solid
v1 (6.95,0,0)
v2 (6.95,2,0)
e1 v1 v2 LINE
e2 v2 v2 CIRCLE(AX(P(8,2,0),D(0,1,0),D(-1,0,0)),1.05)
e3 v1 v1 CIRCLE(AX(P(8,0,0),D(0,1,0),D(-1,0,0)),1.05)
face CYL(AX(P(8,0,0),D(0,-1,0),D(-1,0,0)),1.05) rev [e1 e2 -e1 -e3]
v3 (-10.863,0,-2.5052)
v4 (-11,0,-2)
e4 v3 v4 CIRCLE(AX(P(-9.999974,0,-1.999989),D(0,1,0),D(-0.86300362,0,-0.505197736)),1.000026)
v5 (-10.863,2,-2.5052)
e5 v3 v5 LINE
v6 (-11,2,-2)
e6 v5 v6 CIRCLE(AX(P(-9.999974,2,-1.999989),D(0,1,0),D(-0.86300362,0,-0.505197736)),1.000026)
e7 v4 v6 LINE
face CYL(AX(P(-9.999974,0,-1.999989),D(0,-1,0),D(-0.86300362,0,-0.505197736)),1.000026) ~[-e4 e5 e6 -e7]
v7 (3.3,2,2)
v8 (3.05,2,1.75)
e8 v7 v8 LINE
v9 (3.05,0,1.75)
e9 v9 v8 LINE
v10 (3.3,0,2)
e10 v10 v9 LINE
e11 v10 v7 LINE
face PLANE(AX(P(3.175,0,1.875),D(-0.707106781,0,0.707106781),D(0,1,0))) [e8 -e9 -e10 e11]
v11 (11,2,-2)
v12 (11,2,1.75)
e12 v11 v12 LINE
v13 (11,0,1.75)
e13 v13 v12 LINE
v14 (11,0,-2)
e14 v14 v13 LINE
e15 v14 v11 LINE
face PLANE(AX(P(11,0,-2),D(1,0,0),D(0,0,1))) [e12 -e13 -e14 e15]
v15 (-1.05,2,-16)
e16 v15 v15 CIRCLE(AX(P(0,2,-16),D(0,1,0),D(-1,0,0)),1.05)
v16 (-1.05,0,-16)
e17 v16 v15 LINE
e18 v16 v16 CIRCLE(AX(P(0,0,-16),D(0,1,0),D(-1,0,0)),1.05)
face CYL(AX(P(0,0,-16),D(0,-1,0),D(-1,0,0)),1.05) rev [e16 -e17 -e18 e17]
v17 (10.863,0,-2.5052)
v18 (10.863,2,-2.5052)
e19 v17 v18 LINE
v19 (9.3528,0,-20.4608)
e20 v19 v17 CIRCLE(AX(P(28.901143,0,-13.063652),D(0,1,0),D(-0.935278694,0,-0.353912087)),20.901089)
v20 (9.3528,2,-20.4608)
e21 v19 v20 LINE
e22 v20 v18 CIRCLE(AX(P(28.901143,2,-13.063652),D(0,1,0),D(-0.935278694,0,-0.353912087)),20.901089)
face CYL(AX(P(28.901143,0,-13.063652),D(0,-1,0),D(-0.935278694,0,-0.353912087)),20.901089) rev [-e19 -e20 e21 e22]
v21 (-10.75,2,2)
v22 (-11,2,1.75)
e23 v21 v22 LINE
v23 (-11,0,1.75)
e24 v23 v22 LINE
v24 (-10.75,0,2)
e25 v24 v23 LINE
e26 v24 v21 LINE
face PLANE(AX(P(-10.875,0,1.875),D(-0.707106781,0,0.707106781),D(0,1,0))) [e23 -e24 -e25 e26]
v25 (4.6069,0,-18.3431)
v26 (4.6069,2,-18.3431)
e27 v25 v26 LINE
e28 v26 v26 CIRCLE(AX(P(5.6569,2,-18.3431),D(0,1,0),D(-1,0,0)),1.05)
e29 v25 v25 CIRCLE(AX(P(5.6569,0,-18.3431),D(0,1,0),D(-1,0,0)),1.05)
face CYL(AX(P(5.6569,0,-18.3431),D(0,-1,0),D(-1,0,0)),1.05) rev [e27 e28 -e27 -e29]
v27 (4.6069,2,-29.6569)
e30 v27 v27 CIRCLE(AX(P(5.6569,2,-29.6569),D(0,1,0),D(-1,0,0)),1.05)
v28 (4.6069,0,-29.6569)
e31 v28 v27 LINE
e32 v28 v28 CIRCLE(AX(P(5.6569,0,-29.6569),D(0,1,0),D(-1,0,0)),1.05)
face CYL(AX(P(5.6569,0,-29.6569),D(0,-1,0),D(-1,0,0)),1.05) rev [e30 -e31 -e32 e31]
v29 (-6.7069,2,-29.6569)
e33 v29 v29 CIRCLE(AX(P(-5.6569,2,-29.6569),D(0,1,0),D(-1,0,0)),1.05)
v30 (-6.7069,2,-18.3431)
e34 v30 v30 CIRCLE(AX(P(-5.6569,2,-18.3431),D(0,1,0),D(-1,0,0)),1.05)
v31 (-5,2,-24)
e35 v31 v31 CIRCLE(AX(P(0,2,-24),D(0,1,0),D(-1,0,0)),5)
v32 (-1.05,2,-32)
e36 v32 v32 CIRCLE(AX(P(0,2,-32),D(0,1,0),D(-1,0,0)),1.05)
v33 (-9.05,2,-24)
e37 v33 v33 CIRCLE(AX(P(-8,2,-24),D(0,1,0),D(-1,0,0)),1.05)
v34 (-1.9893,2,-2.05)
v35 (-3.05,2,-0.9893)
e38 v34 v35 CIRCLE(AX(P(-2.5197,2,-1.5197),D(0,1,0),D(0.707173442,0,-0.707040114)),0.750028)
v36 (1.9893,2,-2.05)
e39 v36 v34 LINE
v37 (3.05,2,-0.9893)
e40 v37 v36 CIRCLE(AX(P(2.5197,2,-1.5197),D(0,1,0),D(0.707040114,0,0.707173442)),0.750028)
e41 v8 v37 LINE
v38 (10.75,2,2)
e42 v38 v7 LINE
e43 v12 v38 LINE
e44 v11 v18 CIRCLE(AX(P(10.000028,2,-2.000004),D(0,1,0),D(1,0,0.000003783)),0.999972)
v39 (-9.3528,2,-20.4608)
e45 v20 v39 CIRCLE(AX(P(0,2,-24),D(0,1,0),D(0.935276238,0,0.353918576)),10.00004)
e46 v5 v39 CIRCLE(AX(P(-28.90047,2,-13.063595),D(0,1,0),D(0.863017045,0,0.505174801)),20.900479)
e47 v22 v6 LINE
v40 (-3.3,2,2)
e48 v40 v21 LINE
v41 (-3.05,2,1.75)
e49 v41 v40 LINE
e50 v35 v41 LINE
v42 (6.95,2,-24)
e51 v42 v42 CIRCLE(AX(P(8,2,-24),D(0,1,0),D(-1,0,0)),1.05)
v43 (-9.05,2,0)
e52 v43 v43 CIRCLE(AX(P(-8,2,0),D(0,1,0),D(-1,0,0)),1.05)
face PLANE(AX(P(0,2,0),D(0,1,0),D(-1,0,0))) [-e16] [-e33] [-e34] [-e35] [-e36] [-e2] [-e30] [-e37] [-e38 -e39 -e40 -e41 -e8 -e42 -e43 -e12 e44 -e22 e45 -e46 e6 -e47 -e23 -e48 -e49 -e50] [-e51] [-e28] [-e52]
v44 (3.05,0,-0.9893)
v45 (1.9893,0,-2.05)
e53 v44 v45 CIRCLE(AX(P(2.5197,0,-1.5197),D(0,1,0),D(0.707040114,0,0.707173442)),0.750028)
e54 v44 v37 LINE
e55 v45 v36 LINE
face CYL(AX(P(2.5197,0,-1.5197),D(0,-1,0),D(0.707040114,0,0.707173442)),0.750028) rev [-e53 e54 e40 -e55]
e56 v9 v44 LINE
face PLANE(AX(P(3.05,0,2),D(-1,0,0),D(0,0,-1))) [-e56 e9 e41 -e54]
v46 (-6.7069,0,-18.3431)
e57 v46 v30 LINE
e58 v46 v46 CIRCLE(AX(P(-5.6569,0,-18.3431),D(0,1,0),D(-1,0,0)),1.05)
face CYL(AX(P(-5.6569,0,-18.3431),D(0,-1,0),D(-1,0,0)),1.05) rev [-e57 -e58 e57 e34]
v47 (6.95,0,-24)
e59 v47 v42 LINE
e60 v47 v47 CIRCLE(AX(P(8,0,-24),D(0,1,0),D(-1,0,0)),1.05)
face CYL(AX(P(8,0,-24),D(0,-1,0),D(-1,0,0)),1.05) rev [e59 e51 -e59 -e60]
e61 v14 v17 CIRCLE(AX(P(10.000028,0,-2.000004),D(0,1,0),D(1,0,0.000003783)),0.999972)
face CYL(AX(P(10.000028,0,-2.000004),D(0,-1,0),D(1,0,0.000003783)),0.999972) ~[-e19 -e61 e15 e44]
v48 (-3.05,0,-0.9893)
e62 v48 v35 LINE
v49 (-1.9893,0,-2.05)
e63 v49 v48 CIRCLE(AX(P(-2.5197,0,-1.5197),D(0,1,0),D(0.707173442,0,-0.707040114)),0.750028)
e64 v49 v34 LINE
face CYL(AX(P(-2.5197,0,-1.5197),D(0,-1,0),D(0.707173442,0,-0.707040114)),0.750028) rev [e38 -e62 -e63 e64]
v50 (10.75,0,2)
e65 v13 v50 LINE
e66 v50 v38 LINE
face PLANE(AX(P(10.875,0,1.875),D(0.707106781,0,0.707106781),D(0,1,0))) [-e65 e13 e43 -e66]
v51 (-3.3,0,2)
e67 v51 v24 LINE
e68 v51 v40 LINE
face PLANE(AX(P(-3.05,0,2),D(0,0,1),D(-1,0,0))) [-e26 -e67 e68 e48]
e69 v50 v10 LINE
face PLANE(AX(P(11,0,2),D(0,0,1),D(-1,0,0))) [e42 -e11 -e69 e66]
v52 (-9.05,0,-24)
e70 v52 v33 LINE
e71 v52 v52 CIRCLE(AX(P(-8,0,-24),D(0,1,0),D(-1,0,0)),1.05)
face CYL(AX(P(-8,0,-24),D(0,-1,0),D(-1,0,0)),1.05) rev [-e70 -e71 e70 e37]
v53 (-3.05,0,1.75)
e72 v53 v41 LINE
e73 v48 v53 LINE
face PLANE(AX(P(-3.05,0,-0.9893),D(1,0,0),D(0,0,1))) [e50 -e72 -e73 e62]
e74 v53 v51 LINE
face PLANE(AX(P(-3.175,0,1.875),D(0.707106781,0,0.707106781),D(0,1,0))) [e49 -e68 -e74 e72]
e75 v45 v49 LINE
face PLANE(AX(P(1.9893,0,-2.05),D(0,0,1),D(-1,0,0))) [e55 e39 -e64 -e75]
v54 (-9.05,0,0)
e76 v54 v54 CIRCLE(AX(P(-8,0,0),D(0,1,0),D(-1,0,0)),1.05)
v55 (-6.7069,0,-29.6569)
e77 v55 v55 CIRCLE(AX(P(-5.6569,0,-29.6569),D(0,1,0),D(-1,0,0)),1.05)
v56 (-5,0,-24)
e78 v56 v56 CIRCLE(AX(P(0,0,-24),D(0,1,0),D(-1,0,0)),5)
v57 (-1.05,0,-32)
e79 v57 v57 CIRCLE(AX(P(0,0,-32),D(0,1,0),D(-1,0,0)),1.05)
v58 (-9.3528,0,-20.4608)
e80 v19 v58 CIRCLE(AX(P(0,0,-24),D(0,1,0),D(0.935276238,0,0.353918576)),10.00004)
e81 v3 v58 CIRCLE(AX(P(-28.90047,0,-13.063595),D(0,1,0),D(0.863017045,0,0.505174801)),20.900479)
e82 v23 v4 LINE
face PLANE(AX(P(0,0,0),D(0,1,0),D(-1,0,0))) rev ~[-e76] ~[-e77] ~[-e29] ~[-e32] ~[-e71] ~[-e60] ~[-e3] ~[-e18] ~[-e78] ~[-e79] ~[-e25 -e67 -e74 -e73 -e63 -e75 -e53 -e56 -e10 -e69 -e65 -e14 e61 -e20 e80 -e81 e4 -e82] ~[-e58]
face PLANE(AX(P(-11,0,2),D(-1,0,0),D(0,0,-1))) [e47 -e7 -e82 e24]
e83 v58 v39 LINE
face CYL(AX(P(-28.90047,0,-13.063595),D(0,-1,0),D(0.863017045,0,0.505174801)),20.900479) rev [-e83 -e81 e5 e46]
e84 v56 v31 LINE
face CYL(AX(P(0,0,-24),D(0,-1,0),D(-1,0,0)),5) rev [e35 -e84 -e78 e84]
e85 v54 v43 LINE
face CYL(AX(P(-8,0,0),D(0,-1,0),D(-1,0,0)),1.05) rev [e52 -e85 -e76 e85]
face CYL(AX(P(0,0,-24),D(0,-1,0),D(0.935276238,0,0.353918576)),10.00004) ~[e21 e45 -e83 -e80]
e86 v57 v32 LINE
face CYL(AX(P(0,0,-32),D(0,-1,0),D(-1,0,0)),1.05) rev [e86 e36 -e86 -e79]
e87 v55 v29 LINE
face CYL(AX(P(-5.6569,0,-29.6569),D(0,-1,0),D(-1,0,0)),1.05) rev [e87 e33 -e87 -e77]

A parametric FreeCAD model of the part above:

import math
import FreeCAD as App
import Part
import Sketcher

V = App.Vector
Q = App.Units.Quantity


def edges_at(feature, points):
    """Names of the edges that pass closest to the given points."""
    edges = feature.Shape.Edges
    near = lambda p: min(range(len(edges)), key=lambda i: edges[i].distToShape(Part.Vertex(*p))[0])
    return sorted({f"Edge{near(p) + 1}" for p in points})

doc = App.newDocument("Part")
params = doc.addObject("Spreadsheet::Sheet", "Params")
for row, (alias, value) in enumerate([
    ("sketch1_diameter", "10 mm"),
    ("sketch1_radius", "10 mm"),
    ("sketch1_radius2", "1 mm"),
    ("sketch1_diameter2", "2.1 mm"),
    ("sketch1_height", "4 mm"),
    ("pad1_length", "2 mm"),
    ("chamfer_size", "0.25 mm"),
], start=1):
    params.set(f"A{row}", alias)
    params.set(f"B{row}", "=" + value)
    params.setAlias(f"B{row}", alias)

body = doc.addObject("PartDesign::Body", "Body")

sketch1 = body.newObject("Sketcher::SketchObject", "Sketch")
sketch1.AttachmentSupport = (doc.getObject("XZ_Plane"), [""])
sketch1.MapMode = "FlatFace"
sketch1.addGeometry([
    Part.ArcOfCircle(Part.Circle(V(28.9, -13.1, 0), V(0, 0, 1), 20.9), math.radians(150), math.radians(201)),
    Part.ArcOfCircle(Part.Circle(V(0, -24, 0), V(0, 0, 1), 10), math.radians(159), math.radians(381)),
    Part.ArcOfCircle(Part.Circle(V(-28.9, -13.1, 0), V(0, 0, 1), 20.9), math.radians(-21), math.radians(30)),
    Part.ArcOfCircle(Part.Circle(V(-10, -2, 0), V(0, 0, 1), 1), math.radians(180), math.radians(210)),
    Part.LineSegment(V(-11, -2, 0), V(-11, 2, 0)),
    Part.LineSegment(V(-11, 2, 0), V(-3, 2, 0)),
    Part.LineSegment(V(-3, 2, 0), V(-3, -1, 0)),
    Part.ArcOfCircle(Part.Circle(V(-2.5, -1.5, 0), V(0, 0, 1), 0.8), math.radians(135), math.radians(315)),
    Part.LineSegment(V(-2, -2, 0), V(2, -2, 0)),
    Part.ArcOfCircle(Part.Circle(V(2.5, -1.5, 0), V(0, 0, 1), 0.8), math.radians(-135), math.radians(45)),
    Part.LineSegment(V(3, -1, 0), V(3, 2, 0)),
    Part.LineSegment(V(3, 2, 0), V(11, 2, 0)),
    Part.LineSegment(V(11, 2, 0), V(11, -2, 0)),
    Part.ArcOfCircle(Part.Circle(V(10, -2, 0), V(0, 0, 1), 1), math.radians(-30), math.radians(0)),
    Part.Circle(V(5.7, -29.7, 0), V(0, 0, 1), 1.1),
    Part.Circle(V(8, -24, 0), V(0, 0, 1), 1.1),
    Part.Circle(V(5.7, -18.3, 0), V(0, 0, 1), 1.1),
    Part.Circle(V(0, -32, 0), V(0, 0, 1), 1.1),
    Part.Circle(V(-5.7, -29.7, 0), V(0, 0, 1), 1.1),
    Part.Circle(V(0, -24, 0), V(0, 0, 1), 5),
    Part.Circle(V(-8, -24, 0), V(0, 0, 1), 1.1),
    Part.Circle(V(-5.7, -18.3, 0), V(0, 0, 1), 1.1),
    Part.Circle(V(8, 0, 0), V(0, 0, 1), 1.1),
    Part.Circle(V(0, -16, 0), V(0, 0, 1), 1.1),
    Part.Circle(V(-8, 0, 0), V(0, 0, 1), 1.1),
], False)
sketch1.addConstraint([
    Sketcher.Constraint("Tangent", 0, 2, 1, 2),
    Sketcher.Constraint("Tangent", 1, 1, 2, 1),
    Sketcher.Constraint("Tangent", 2, 2, 3, 2),
    Sketcher.Constraint("Tangent", 3, 1, 4, 1),
    Sketcher.Constraint("Coincident", 4, 2, 5, 1),
    Sketcher.Constraint("Coincident", 5, 2, 6, 1),
    Sketcher.Constraint("Coincident", 6, 2, 7, 1),
    Sketcher.Constraint("Coincident", 7, 2, 8, 1),
    Sketcher.Constraint("Coincident", 8, 2, 9, 1),
    Sketcher.Constraint("Coincident", 9, 2, 10, 1),
    Sketcher.Constraint("Coincident", 10, 2, 11, 1),
    Sketcher.Constraint("Coincident", 11, 2, 12, 1),
    Sketcher.Constraint("Tangent", 12, 2, 13, 2),
    Sketcher.Constraint("Tangent", 13, 1, 0, 1),
    Sketcher.Constraint("Vertical", 4),
    Sketcher.Constraint("Horizontal", 5),
    Sketcher.Constraint("Vertical", 6),
    Sketcher.Constraint("Horizontal", 8),
    Sketcher.Constraint("Vertical", 10),
    Sketcher.Constraint("Horizontal", 11),
    Sketcher.Constraint("Vertical", 12),
    Sketcher.Constraint("Coincident", 19, 3, 1, 3),
    Sketcher.Constraint("Equal", 0, 2),
    Sketcher.Constraint("Equal", 7, 9),
    Sketcher.Constraint("Equal", 3, 13),
    Sketcher.Constraint("Equal", 14, 15),
    Sketcher.Constraint("Equal", 15, 16),
    Sketcher.Constraint("Equal", 16, 17),
    Sketcher.Constraint("Equal", 17, 18),
    Sketcher.Constraint("Equal", 18, 20),
    Sketcher.Constraint("Equal", 20, 21),
    Sketcher.Constraint("Equal", 21, 22),
    Sketcher.Constraint("Equal", 22, 23),
    Sketcher.Constraint("Equal", 23, 24),
    Sketcher.Constraint("Symmetric", 22, 3, 24, 3, -1, 1),
    Sketcher.Constraint("Symmetric", 3, 1, 11, 2, -1, 1),
    Sketcher.Constraint("Symmetric", 0, 3, 2, 3, -2),
    Sketcher.Constraint("Symmetric", 7, 3, 9, 3, -2),
    Sketcher.Constraint("Symmetric", 14, 3, 18, 3, -2),
    Sketcher.Constraint("Symmetric", 15, 3, 20, 3, -2),
    Sketcher.Constraint("Symmetric", 16, 3, 21, 3, -2),
    Sketcher.Constraint("Symmetric", 5, 2, 10, 2, -2),
    Sketcher.Constraint("PointOnObject", 17, 3, -2),
    Sketcher.Constraint("PointOnObject", 22, 3, -1),
    Sketcher.Constraint("PointOnObject", 23, 3, -2),
    Sketcher.Constraint("Horizontal", 1, 3, 15, 3),
    Sketcher.Constraint("Vertical", 14, 3, 16, 3),
    Sketcher.Constraint("Vertical", 15, 3, 22, 3),
    Sketcher.Constraint("Diameter", 19, Q("10 mm")),
    Sketcher.Constraint("Radius", 1, Q("10 mm")),
    Sketcher.Constraint("Radius", 3, Q("1 mm")),
    Sketcher.Constraint("Diameter", 14, Q("2.1 mm")),
    Sketcher.Constraint("DistanceY", 4, 1, 4, 2, Q("4 mm")),
    Sketcher.Constraint("Radius", 7, Q("0.75 mm")),
    Sketcher.Constraint("DistanceX", 3, 3, -1, 1, Q("10 mm")),
    Sketcher.Constraint("DistanceY", 23, 3, -1, 1, Q("16 mm")),
    Sketcher.Constraint("DistanceY", 1, 3, 3, 3, Q("22 mm")),
    Sketcher.Constraint("DistanceX", 24, 3, 22, 3, Q("16 mm")),
    Sketcher.Constraint("DistanceX", 5, 2, 10, 2, Q("6.1 mm")),
    Sketcher.Constraint("DistanceY", 7, 2, 5, 2, Q("4.05 mm")),
    Sketcher.Constraint("DistanceY", 17, 3, -1, 1, Q("32 mm")),
    Sketcher.Constraint("Radius", 0, Q("20.9008 mm")),
    Sketcher.Constraint("DistanceX", 8, 1, 8, 2, Q("3.9786 mm")),
    Sketcher.Constraint("DistanceX", -1, 1, 14, 3, Q("5.657 mm")),
    Sketcher.Constraint("DistanceY", 14, 3, -1, 1, Q("29.657 mm")),
    Sketcher.Constraint("DistanceY", 16, 3, -1, 1, Q("18.343 mm")),
    Sketcher.Constraint("DistanceX", 2, 3, 7, 3, Q("26.381 mm")),
])
sketch1.setExpression("Constraints[48]", "Params.sketch1_diameter")
sketch1.setExpression("Constraints[49]", "Params.sketch1_radius")
sketch1.setExpression("Constraints[50]", "Params.sketch1_radius2")
sketch1.setExpression("Constraints[51]", "Params.sketch1_diameter2")
sketch1.setExpression("Constraints[52]", "Params.sketch1_height")
pad1 = body.newObject("PartDesign::Pad", "Pad")
pad1.Profile = sketch1
pad1.setExpression("Length", "Params.pad1_length")
pad1.Reversed = True
doc.recompute()

chamfer = body.newObject("PartDesign::Chamfer", "Chamfer")
chamfer.Base = (pad1, edges_at(pad1, [
    (11, 1, 2),
    (-11, 1, 2),
    (-3.05, 1, 2),
    (3.05, 1, 2),
]))
chamfer.setExpression("Size", "Params.chamfer_size")

doc.recompute()
